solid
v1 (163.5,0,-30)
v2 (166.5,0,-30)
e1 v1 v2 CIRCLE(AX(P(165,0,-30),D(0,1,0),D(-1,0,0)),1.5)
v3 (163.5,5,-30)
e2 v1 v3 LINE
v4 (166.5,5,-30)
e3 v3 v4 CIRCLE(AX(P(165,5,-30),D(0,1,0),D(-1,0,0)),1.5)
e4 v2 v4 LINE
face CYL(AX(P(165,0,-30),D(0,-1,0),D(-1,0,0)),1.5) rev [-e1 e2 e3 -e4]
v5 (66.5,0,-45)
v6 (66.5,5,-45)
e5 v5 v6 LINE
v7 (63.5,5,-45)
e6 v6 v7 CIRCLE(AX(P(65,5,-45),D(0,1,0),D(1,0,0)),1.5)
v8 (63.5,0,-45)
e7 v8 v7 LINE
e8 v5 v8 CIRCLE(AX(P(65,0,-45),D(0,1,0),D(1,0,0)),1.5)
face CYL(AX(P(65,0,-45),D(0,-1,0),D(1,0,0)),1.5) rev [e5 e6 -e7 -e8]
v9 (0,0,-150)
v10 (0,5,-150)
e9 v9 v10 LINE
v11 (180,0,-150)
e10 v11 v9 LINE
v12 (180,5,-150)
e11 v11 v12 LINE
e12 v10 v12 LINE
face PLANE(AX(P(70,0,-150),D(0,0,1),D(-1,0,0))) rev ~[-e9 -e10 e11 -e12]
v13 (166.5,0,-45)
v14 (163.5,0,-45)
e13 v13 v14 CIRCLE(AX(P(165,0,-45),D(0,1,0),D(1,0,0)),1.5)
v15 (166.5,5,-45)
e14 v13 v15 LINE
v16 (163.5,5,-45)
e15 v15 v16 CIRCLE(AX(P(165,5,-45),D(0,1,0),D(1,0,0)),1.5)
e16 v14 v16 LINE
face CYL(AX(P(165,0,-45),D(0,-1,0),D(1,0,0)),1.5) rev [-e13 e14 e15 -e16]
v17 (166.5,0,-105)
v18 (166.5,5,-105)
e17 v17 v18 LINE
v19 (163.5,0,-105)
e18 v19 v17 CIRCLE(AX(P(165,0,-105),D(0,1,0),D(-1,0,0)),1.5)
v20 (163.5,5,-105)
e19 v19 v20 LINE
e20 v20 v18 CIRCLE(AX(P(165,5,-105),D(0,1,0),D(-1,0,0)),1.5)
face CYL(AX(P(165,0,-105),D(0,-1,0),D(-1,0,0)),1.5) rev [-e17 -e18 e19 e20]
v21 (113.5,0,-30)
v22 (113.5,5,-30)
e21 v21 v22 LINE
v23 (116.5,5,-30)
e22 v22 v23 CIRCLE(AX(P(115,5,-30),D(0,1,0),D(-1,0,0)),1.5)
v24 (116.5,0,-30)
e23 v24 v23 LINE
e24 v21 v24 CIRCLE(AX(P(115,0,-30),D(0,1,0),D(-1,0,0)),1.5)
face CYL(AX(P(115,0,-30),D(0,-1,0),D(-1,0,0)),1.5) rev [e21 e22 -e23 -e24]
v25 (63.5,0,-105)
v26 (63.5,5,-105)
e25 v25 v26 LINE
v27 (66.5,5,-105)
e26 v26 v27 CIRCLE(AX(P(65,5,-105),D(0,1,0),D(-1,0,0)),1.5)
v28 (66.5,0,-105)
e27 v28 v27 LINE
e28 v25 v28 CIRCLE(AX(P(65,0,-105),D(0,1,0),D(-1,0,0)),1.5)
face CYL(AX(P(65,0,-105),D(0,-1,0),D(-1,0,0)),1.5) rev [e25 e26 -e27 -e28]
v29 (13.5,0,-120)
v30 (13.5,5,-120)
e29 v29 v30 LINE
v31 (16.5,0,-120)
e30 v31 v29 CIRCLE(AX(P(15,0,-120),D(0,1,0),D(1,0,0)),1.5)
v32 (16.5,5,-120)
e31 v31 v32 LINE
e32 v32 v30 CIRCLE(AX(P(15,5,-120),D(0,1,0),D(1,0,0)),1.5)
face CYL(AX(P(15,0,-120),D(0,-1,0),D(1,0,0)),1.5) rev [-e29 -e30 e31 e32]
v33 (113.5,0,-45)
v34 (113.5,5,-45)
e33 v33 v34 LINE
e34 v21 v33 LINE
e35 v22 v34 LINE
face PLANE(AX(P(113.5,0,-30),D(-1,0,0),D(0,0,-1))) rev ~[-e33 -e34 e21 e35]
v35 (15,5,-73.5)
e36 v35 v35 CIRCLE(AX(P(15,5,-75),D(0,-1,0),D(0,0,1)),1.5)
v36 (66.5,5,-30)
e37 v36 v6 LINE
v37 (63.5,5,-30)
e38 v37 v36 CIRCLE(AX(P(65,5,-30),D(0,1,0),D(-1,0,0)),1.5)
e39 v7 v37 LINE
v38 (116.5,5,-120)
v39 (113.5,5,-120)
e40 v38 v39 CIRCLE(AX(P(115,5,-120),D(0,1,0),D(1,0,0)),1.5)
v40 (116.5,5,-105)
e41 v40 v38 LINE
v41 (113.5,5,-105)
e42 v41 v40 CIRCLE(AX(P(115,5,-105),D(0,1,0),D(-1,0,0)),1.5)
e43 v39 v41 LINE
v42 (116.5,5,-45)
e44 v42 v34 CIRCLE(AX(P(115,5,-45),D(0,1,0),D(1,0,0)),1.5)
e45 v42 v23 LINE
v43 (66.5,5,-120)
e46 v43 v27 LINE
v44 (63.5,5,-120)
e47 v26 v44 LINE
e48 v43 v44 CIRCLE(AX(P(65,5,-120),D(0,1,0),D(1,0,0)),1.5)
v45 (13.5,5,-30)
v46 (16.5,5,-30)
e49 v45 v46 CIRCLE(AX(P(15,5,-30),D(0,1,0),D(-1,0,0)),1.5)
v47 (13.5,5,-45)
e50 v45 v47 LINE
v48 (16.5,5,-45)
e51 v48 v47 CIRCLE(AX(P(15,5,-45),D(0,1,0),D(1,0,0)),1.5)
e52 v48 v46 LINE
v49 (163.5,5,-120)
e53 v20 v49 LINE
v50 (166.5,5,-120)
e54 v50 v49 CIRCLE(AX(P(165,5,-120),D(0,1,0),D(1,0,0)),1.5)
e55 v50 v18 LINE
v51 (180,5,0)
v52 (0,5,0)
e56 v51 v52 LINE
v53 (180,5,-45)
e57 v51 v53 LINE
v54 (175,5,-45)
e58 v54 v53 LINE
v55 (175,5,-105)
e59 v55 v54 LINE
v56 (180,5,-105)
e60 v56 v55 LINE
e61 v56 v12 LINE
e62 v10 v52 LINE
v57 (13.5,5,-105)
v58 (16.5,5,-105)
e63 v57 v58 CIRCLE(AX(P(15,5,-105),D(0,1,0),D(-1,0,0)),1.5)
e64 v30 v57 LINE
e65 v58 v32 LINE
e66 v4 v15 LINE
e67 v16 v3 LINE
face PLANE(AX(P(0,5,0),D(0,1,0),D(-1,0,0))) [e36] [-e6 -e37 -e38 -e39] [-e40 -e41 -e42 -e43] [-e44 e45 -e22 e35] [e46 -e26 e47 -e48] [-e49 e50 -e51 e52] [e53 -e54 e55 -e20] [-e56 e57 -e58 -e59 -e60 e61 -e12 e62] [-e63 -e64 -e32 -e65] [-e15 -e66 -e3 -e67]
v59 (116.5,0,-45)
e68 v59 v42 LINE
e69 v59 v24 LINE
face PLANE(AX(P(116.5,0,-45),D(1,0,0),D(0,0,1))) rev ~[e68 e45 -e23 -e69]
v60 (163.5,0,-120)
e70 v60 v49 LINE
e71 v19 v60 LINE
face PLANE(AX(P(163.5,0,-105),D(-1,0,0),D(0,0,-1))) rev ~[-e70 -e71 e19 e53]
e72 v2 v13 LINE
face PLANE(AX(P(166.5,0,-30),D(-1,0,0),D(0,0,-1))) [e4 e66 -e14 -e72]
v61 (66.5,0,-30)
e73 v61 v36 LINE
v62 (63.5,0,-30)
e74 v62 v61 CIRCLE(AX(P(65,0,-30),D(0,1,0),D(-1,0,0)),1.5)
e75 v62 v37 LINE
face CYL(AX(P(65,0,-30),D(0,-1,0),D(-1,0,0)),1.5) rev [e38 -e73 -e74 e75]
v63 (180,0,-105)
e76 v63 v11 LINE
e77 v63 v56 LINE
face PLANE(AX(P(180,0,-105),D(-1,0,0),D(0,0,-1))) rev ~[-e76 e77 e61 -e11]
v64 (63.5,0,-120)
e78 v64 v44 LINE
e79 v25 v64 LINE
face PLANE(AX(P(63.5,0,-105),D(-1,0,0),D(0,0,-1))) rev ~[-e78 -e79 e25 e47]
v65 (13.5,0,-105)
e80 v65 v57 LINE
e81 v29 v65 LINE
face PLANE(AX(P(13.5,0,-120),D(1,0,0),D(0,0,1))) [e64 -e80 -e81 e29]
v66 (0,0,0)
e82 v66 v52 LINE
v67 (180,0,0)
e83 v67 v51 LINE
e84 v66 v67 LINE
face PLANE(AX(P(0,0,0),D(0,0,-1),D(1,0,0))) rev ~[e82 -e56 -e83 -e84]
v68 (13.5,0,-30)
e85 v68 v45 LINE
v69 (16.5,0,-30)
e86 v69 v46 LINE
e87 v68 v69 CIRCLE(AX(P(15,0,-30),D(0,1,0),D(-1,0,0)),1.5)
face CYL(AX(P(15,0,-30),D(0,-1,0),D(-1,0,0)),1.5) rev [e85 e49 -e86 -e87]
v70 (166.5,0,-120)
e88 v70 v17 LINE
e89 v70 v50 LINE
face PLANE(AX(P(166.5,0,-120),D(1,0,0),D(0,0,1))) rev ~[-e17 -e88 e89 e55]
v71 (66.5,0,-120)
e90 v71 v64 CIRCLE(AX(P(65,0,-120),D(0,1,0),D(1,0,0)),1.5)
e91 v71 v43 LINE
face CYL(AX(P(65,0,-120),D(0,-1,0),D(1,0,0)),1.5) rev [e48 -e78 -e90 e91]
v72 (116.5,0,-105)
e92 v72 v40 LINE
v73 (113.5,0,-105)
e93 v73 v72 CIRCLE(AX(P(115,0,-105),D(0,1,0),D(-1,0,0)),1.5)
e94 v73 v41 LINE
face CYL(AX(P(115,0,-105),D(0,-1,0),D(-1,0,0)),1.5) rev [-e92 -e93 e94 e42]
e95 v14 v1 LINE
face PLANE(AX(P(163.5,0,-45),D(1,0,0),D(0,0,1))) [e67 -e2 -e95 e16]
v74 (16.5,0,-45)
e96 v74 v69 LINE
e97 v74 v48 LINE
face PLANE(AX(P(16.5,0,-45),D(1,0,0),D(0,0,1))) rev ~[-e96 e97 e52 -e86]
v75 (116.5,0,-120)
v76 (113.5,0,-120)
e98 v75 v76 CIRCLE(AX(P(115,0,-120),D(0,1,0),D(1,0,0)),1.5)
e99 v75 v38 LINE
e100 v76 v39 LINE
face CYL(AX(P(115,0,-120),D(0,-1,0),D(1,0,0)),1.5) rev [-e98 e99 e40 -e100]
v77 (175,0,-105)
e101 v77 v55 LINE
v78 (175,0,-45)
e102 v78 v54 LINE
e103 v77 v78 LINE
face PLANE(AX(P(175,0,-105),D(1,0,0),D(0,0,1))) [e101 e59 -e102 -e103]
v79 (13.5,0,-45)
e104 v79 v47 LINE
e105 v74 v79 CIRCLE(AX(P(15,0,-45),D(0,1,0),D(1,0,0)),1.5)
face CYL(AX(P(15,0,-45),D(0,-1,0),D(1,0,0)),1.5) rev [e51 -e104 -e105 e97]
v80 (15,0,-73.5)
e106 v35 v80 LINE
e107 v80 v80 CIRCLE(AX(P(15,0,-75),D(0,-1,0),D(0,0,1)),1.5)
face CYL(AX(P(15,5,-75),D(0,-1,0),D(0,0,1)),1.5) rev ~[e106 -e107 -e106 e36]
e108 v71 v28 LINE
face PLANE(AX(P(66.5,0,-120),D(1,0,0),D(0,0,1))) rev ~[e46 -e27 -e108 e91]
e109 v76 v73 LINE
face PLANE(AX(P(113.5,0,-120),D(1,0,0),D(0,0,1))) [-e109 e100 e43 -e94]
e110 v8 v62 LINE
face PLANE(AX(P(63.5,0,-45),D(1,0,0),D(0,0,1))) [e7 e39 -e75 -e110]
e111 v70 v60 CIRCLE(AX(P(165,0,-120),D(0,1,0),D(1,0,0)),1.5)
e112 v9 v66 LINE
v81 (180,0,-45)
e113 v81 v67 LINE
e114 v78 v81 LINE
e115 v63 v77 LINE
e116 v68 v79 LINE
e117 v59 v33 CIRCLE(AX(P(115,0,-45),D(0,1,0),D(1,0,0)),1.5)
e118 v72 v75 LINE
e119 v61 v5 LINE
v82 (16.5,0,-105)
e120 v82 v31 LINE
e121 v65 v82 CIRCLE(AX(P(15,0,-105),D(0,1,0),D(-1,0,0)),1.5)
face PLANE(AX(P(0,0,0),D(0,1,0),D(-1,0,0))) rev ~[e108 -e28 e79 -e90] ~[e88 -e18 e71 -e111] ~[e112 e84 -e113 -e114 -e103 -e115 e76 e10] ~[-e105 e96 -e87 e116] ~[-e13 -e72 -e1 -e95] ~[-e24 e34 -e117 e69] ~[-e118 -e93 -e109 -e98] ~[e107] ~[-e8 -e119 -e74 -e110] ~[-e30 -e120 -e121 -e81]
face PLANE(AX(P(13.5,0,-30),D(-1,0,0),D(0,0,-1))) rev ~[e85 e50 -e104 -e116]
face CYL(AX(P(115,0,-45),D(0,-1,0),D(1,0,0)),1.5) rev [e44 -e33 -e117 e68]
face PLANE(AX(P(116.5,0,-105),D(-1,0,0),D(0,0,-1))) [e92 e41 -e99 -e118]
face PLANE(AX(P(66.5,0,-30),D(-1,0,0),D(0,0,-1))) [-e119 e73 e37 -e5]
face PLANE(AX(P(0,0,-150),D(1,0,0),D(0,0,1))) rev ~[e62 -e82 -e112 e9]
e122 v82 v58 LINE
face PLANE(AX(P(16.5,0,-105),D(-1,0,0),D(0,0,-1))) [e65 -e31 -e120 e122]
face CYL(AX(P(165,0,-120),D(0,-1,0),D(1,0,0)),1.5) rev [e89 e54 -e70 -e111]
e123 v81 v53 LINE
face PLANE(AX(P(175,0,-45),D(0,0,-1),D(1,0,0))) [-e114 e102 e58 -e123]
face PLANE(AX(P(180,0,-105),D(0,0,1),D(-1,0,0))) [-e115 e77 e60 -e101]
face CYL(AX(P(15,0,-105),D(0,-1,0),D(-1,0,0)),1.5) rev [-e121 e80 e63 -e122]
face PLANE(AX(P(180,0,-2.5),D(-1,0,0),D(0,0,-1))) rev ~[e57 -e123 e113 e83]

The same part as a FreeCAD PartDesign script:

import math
import FreeCAD as App
import Part
import Sketcher
from FreeCAD import Vector
Q = App.Units.Quantity


def add_polygon(sketch, points):
    """Adds a closed chain of lines whose ends are joined by coincident constraints."""
    first, n = sketch.GeometryCount, len(points)
    for a, b in zip(points, points[1:] + points[:1]):
        sketch.addGeometry(Part.LineSegment(App.Vector(*a, 0), App.Vector(*b, 0)), False)
    for i in range(n):
        sketch.addConstraint(Sketcher.Constraint("Coincident", first + i, 2, first + (i + 1) % n, 1))

doc = App.newDocument("Part")
body = doc.addObject("PartDesign::Body", "Body")

# Sketch on XZ plane
sketch1 = body.newObject("Sketcher::SketchObject", "Sketch")
sketch1.AttachmentSupport = (doc.getObject("XZ_Plane"), [""])
sketch1.MapMode = "FlatFace"
add_polygon(sketch1, [(0, -150), (0, 0), (180, 0), (180, -45), (175, -45), (175, -105), (180, -105), (180, -150)])  # lines 0-7
sketch1.addGeometry(Part.ArcOfCircle(Part.Circle(Vector(165, -120, 0), Vector(0, 0, 1), 1.5), math.radians(180), math.radians(360)), False)  # 8
sketch1.addGeometry(Part.LineSegment(Vector(166.5, -120, 0), Vector(166.5, -105, 0)), False)  # 9
sketch1.addGeometry(Part.ArcOfCircle(Part.Circle(Vector(165, -105, 0), Vector(0, 0, 1), 1.5), math.radians(0), math.radians(180)), False)  # 10
sketch1.addGeometry(Part.LineSegment(Vector(163.5, -105, 0), Vector(163.5, -120, 0)), False)  # 11
sketch1.addGeometry(Part.LineSegment(Vector(116.5, -120, 0), Vector(116.5, -105, 0)), False)  # 12
sketch1.addGeometry(Part.ArcOfCircle(Part.Circle(Vector(115, -105, 0), Vector(0, 0, 1), 1.5), math.radians(0), math.radians(180)), False)  # 13
sketch1.addGeometry(Part.LineSegment(Vector(113.5, -105, 0), Vector(113.5, -120, 0)), False)  # 14
sketch1.addGeometry(Part.ArcOfCircle(Part.Circle(Vector(115, -120, 0), Vector(0, 0, 1), 1.5), math.radians(180), math.radians(360)), False)  # 15
sketch1.addGeometry(Part.ArcOfCircle(Part.Circle(Vector(65, -120, 0), Vector(0, 0, 1), 1.5), math.radians(180), math.radians(360)), False)  # 16
sketch1.addGeometry(Part.LineSegment(Vector(66.5, -120, 0), Vector(66.5, -105, 0)), False)  # 17
sketch1.addGeometry(Part.ArcOfCircle(Part.Circle(Vector(65, -105, 0), Vector(0, 0, 1), 1.5), math.radians(0), math.radians(180)), False)  # 18
sketch1.addGeometry(Part.LineSegment(Vector(63.5, -105, 0), Vector(63.5, -120, 0)), False)  # 19
sketch1.addGeometry(Part.LineSegment(Vector(13.5, -105, 0), Vector(13.5, -120, 0)), False)  # 20
sketch1.addGeometry(Part.ArcOfCircle(Part.Circle(Vector(15, -120, 0), Vector(0, 0, 1), 1.5), math.radians(180), math.radians(360)), False)  # 21
sketch1.addGeometry(Part.LineSegment(Vector(16.5, -120, 0), Vector(16.5, -105, 0)), False)  # 22
sketch1.addGeometry(Part.ArcOfCircle(Part.Circle(Vector(15, -105, 0), Vector(0, 0, 1), 1.5), math.radians(0), math.radians(180)), False)  # 23
sketch1.addGeometry(Part.ArcOfCircle(Part.Circle(Vector(165, -30, 0), Vector(0, 0, 1), 1.5), math.radians(0), math.radians(180)), False)  # 24
sketch1.addGeometry(Part.LineSegment(Vector(163.5, -30, 0), Vector(163.5, -45, 0)), False)  # 25
sketch1.addGeometry(Part.ArcOfCircle(Part.Circle(Vector(165, -45, 0), Vector(0, 0, 1), 1.5), math.radians(180), math.radians(360)), False)  # 26
sketch1.addGeometry(Part.LineSegment(Vector(166.5, -45, 0), Vector(166.5, -30, 0)), False)  # 27
sketch1.addGeometry(Part.ArcOfCircle(Part.Circle(Vector(115, -45, 0), Vector(0, 0, 1), 1.5), math.radians(180), math.radians(360)), False)  # 28
sketch1.addGeometry(Part.LineSegment(Vector(116.5, -45, 0), Vector(116.5, -30, 0)), False)  # 29
sketch1.addGeometry(Part.ArcOfCircle(Part.Circle(Vector(115, -30, 0), Vector(0, 0, 1), 1.5), math.radians(0), math.radians(180)), False)  # 30
sketch1.addGeometry(Part.LineSegment(Vector(113.5, -30, 0), Vector(113.5, -45, 0)), False)  # 31
sketch1.addGeometry(Part.LineSegment(Vector(63.5, -30, 0), Vector(63.5, -45, 0)), False)  # 32
sketch1.addGeometry(Part.ArcOfCircle(Part.Circle(Vector(65, -45, 0), Vector(0, 0, 1), 1.5), math.radians(180), math.radians(360)), False)  # 33
sketch1.addGeometry(Part.LineSegment(Vector(66.5, -45, 0), Vector(66.5, -30, 0)), False)  # 34
sketch1.addGeometry(Part.ArcOfCircle(Part.Circle(Vector(65, -30, 0), Vector(0, 0, 1), 1.5), math.radians(0), math.radians(180)), False)  # 35
sketch1.addGeometry(Part.ArcOfCircle(Part.Circle(Vector(15, -30, 0), Vector(0, 0, 1), 1.5), math.radians(0), math.radians(180)), False)  # 36
sketch1.addGeometry(Part.LineSegment(Vector(13.5, -30, 0), Vector(13.5, -45, 0)), False)  # 37
sketch1.addGeometry(Part.ArcOfCircle(Part.Circle(Vector(15, -45, 0), Vector(0, 0, 1), 1.5), math.radians(180), math.radians(360)), False)  # 38
sketch1.addGeometry(Part.LineSegment(Vector(16.5, -45, 0), Vector(16.5, -30, 0)), False)  # 39
sketch1.addConstraint(Sketcher.Constraint("Tangent", 8, 2, 9, 1))
sketch1.addConstraint(Sketcher.Constraint("Tangent", 9, 2, 10, 1))
sketch1.addConstraint(Sketcher.Constraint("Tangent", 10, 2, 11, 1))
sketch1.addConstraint(Sketcher.Constraint("Tangent", 11, 2, 8, 1))
sketch1.addConstraint(Sketcher.Constraint("Tangent", 12, 2, 13, 1))
sketch1.addConstraint(Sketcher.Constraint("Tangent", 13, 2, 14, 1))
sketch1.addConstraint(Sketcher.Constraint("Tangent", 14, 2, 15, 1))
sketch1.addConstraint(Sketcher.Constraint("Tangent", 15, 2, 12, 1))
sketch1.addConstraint(Sketcher.Constraint("Tangent", 16, 2, 17, 1))
sketch1.addConstraint(Sketcher.Constraint("Tangent", 17, 2, 18, 1))
sketch1.addConstraint(Sketcher.Constraint("Tangent", 18, 2, 19, 1))
sketch1.addConstraint(Sketcher.Constraint("Tangent", 19, 2, 16, 1))
sketch1.addConstraint(Sketcher.Constraint("Tangent", 20, 2, 21, 1))
sketch1.addConstraint(Sketcher.Constraint("Tangent", 21, 2, 22, 1))
sketch1.addConstraint(Sketcher.Constraint("Tangent", 22, 2, 23, 1))
sketch1.addConstraint(Sketcher.Constraint("Tangent", 23, 2, 20, 1))
sketch1.addConstraint(Sketcher.Constraint("Tangent", 24, 2, 25, 1))
sketch1.addConstraint(Sketcher.Constraint("Tangent", 25, 2, 26, 1))
sketch1.addConstraint(Sketcher.Constraint("Tangent", 26, 2, 27, 1))
sketch1.addConstraint(Sketcher.Constraint("Tangent", 27, 2, 24, 1))
sketch1.addConstraint(Sketcher.Constraint("Tangent", 28, 2, 29, 1))
sketch1.addConstraint(Sketcher.Constraint("Tangent", 29, 2, 30, 1))
sketch1.addConstraint(Sketcher.Constraint("Tangent", 30, 2, 31, 1))
sketch1.addConstraint(Sketcher.Constraint("Tangent", 31, 2, 28, 1))
sketch1.addConstraint(Sketcher.Constraint("Tangent", 32, 2, 33, 1))
sketch1.addConstraint(Sketcher.Constraint("Tangent", 33, 2, 34, 1))
sketch1.addConstraint(Sketcher.Constraint("Tangent", 34, 2, 35, 1))
sketch1.addConstraint(Sketcher.Constraint("Tangent", 35, 2, 32, 1))
sketch1.addConstraint(Sketcher.Constraint("Tangent", 36, 2, 37, 1))
sketch1.addConstraint(Sketcher.Constraint("Tangent", 37, 2, 38, 1))
sketch1.addConstraint(Sketcher.Constraint("Tangent", 38, 2, 39, 1))
sketch1.addConstraint(Sketcher.Constraint("Tangent", 39, 2, 36, 1))
sketch1.addConstraint(Sketcher.Constraint("Vertical", 0))
sketch1.addConstraint(Sketcher.Constraint("Horizontal", 1))
sketch1.addConstraint(Sketcher.Constraint("Vertical", 2))
sketch1.addConstraint(Sketcher.Constraint("Horizontal", 3))
sketch1.addConstraint(Sketcher.Constraint("Vertical", 4))
sketch1.addConstraint(Sketcher.Constraint("Horizontal", 5))
sketch1.addConstraint(Sketcher.Constraint("Vertical", 6))
sketch1.addConstraint(Sketcher.Constraint("Horizontal", 7))
sketch1.addConstraint(Sketcher.Constraint("Vertical", 9))
sketch1.addConstraint(Sketcher.Constraint("Vertical", 11))
sketch1.addConstraint(Sketcher.Constraint("Vertical", 12))
sketch1.addConstraint(Sketcher.Constraint("Vertical", 14))
sketch1.addConstraint(Sketcher.Constraint("Vertical", 17))
sketch1.addConstraint(Sketcher.Constraint("Vertical", 19))
sketch1.addConstraint(Sketcher.Constraint("Vertical", 20))
sketch1.addConstraint(Sketcher.Constraint("Vertical", 22))
sketch1.addConstraint(Sketcher.Constraint("Vertical", 25))
sketch1.addConstraint(Sketcher.Constraint("Vertical", 27))
sketch1.addConstraint(Sketcher.Constraint("Vertical", 29))
sketch1.addConstraint(Sketcher.Constraint("Vertical", 31))
sketch1.addConstraint(Sketcher.Constraint("Vertical", 32))
sketch1.addConstraint(Sketcher.Constraint("Vertical", 34))
sketch1.addConstraint(Sketcher.Constraint("Vertical", 37))
sketch1.addConstraint(Sketcher.Constraint("Vertical", 39))
sketch1.addConstraint(Sketcher.Constraint("Coincident", 0, 2, -1, 1))
sketch1.addConstraint(Sketcher.Constraint("Equal", 10, 13))
sketch1.addConstraint(Sketcher.Constraint("Equal", 15, 16))
sketch1.addConstraint(Sketcher.Constraint("Equal", 18, 21))
sketch1.addConstraint(Sketcher.Constraint("Equal", 23, 24))
sketch1.addConstraint(Sketcher.Constraint("Equal", 26, 28))
sketch1.addConstraint(Sketcher.Constraint("Equal", 30, 33))
sketch1.addConstraint(Sketcher.Constraint("Equal", 35, 36))
sketch1.addConstraint(Sketcher.Constraint("Horizontal", 10, 3, 13, 3))
sketch1.addConstraint(Sketcher.Constraint("Horizontal", 8, 3, 15, 3))
sketch1.addConstraint(Sketcher.Constraint("Horizontal", 15, 3, 16, 3))
sketch1.addConstraint(Sketcher.Constraint("Horizontal", 13, 3, 18, 3))
sketch1.addConstraint(Sketcher.Constraint("Horizontal", 16, 3, 21, 3))
sketch1.addConstraint(Sketcher.Constraint("Horizontal", 18, 3, 23, 3))
sketch1.addConstraint(Sketcher.Constraint("Horizontal", 26, 3, 28, 3))
sketch1.addConstraint(Sketcher.Constraint("Horizontal", 24, 3, 30, 3))
sketch1.addConstraint(Sketcher.Constraint("Horizontal", 28, 3, 33, 3))
sketch1.addConstraint(Sketcher.Constraint("Horizontal", 30, 3, 35, 3))
sketch1.addConstraint(Sketcher.Constraint("Horizontal", 35, 3, 36, 3))
sketch1.addConstraint(Sketcher.Constraint("Horizontal", 33, 3, 38, 3))
sketch1.addConstraint(Sketcher.Constraint("Horizontal", 38, 3, 2, 2))
sketch1.addConstraint(Sketcher.Constraint("Horizontal", 23, 3, 4, 2))
sketch1.addConstraint(Sketcher.Constraint("Vertical", 10, 3, 24, 3))
sketch1.addConstraint(Sketcher.Constraint("Vertical", 15, 3, 28, 3))
sketch1.addConstraint(Sketcher.Constraint("Vertical", 18, 3, 33, 3))
sketch1.addConstraint(Sketcher.Constraint("Vertical", 23, 3, 36, 3))
sketch1.addConstraint(Sketcher.Constraint("Vertical", 2, 2, 5, 2))
sketch1.addConstraint(Sketcher.Constraint("Equal", 2, 6))
sketch1.addConstraint(Sketcher.Constraint("Equal", 22, 25))
sketch1.addConstraint(Sketcher.Constraint("Radius", 8, Q("1.5 mm")))
sketch1.addConstraint(Sketcher.Constraint("DistanceX", 1, 1, 1, 2, Q("180 mm")))
sketch1.addConstraint(Sketcher.Constraint("DistanceX", 3, 2, 3, 1, Q("5 mm")))
sketch1.addConstraint(Sketcher.Constraint("DistanceY", 0, 1, 0, 2, Q("150 mm")))
sketch1.addConstraint(Sketcher.Constraint("DistanceY", 9, 1, 9, 2, Q("15 mm")))
sketch1.addConstraint(Sketcher.Constraint("DistanceX", -1, 1, 21, 3, Q("15 mm")))
sketch1.addConstraint(Sketcher.Constraint("DistanceY", 24, 3, -1, 1, Q("30 mm")))
sketch1.addConstraint(Sketcher.Constraint("DistanceX", 13, 3, 10, 3, Q("50 mm")))
sketch1.addConstraint(Sketcher.Constraint("DistanceX", 16, 3, 15, 3, Q("50 mm")))
sketch1.addConstraint(Sketcher.Constraint("DistanceX", 21, 3, 16, 3, Q("50 mm")))
pad1 = body.newObject("PartDesign::Pad", "Pad")
pad1.Profile = sketch1
pad1.Length = 5
pad1.Reversed = True

# Sketch on XZ plane
sketch2 = body.newObject("Sketcher::SketchObject", "Sketch001")
sketch2.AttachmentSupport = (doc.getObject("XZ_Plane"), [""])
sketch2.MapMode = "FlatFace"
sketch2.AttachmentOffset = App.Placement(Vector(0, 0, -5), App.Rotation())
sketch2.addGeometry(Part.Circle(Vector(15, -75, 0), Vector(0, 0, 1), 1.5), False)
sketch2.addConstraint(Sketcher.Constraint("Diameter", 0, Q("3 mm")))
sketch2.addConstraint(Sketcher.Constraint("DistanceX", -1, 1, 0, 3, Q("15 mm")))
sketch2.addConstraint(Sketcher.Constraint("DistanceY", 0, 3, -1, 1, Q("75 mm")))
doc.recompute()
hole = body.newObject("PartDesign::Hole", "Hole")
hole.Profile = sketch2
hole.ThreadType = "None"
hole.Diameter = 3
hole.DepthType = "ThroughAll"
hole.Reversed = True

doc.recompute()
